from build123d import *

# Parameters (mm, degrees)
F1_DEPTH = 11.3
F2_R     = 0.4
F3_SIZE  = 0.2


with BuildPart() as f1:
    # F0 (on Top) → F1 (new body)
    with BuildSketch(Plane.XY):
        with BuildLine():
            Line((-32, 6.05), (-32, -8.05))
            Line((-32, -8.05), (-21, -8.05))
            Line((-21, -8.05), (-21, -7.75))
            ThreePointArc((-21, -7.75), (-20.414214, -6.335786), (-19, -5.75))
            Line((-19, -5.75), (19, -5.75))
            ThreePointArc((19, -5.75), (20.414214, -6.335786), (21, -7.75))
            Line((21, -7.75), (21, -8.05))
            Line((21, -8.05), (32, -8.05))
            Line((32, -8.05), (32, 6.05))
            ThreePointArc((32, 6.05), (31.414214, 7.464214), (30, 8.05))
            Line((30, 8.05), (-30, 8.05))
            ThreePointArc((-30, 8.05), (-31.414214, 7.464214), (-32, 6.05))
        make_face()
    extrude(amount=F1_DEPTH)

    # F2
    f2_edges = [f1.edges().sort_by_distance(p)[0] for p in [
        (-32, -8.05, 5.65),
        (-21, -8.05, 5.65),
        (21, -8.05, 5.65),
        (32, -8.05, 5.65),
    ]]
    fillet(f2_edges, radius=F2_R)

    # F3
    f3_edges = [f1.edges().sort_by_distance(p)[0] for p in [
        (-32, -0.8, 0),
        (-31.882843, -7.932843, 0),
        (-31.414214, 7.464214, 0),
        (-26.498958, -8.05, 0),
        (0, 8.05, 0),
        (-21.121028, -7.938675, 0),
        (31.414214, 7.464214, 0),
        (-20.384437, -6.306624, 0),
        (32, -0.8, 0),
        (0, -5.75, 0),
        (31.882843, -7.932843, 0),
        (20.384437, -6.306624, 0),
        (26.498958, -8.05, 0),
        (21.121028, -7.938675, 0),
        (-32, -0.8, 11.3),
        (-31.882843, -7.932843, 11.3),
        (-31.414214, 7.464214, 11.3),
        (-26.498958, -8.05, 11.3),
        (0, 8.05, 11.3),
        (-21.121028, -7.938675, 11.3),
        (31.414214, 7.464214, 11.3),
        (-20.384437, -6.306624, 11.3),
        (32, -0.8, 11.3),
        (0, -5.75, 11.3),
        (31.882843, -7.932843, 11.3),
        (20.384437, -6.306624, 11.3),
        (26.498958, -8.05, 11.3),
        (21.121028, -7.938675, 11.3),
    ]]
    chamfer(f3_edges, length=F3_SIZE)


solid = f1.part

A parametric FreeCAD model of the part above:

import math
import FreeCAD as App
import Part
import Sketcher


def edges_at(feature, points):
    """Names of the edges that pass closest to the given points."""
    edges = feature.Shape.Edges
    near = lambda p: min(range(len(edges)), key=lambda i: edges[i].distToShape(Part.Vertex(*p))[0])
    return sorted({f"Edge{near(p) + 1}" for p in points})

doc = App.newDocument("Part")
params = doc.addObject("Spreadsheet::Sheet", "Params")
for row, (alias, value) in enumerate([
    ("sketch1_radius", "1.999999 mm"),
    ("sketch1_width", "11 mm"),
    ("sketch1_width2", "38 mm"),
    ("sketch1_height", "14.1 mm"),
    ("sketch1_height2", "0.3 mm"),
    ("pad1_length", "11.3 mm"),
    ("fillet_radius", "0.4 mm"),
    ("chamfer_size", "0.2 mm"),
], start=1):
    params.set(f"A{row}", alias)
    params.set(f"B{row}", "=" + value)
    params.setAlias(f"B{row}", alias)

body = doc.addObject("PartDesign::Body", "Body")

# Sketch on XY plane
sketch1 = body.newObject("Sketcher::SketchObject", "Sketch")
sketch1.AttachmentSupport = (doc.getObject("XY_Plane"), [""])
sketch1.MapMode = "FlatFace"
sketch1.addGeometry([
    Part.LineSegment(App.Vector(-32, 6.05, 0), App.Vector(-32, -8.05, 0)),  # 0
    Part.LineSegment(App.Vector(-32, -8.05, 0), App.Vector(-21, -8.05, 0)),  # 1
    Part.LineSegment(App.Vector(-21, -8.05, 0), App.Vector(-21, -7.75, 0)),  # 2
    Part.ArcOfCircle(Part.Circle(App.Vector(-19.000001, -7.749999, 0), App.Vector(0, 0, 1), 1.999999), math.radians(89.999957), math.radians(180.000043)),  # 3
    Part.LineSegment(App.Vector(-19, -5.75, 0), App.Vector(19, -5.75, 0)),  # 4
    Part.ArcOfCircle(Part.Circle(App.Vector(19.000001, -7.749999, 0), App.Vector(0, 0, 1), 1.999999), math.radians(-0.000043), math.radians(90.000043)),  # 5
    Part.LineSegment(App.Vector(21, -7.75, 0), App.Vector(21, -8.05, 0)),  # 6
    Part.LineSegment(App.Vector(21, -8.05, 0), App.Vector(32, -8.05, 0)),  # 7
    Part.LineSegment(App.Vector(32, -8.05, 0), App.Vector(32, 6.05, 0)),  # 8
    Part.ArcOfCircle(Part.Circle(App.Vector(30.000001, 6.050001, 0), App.Vector(0, 0, 1), 1.999999), math.radians(-0.000043), math.radians(90.000043)),  # 9
    Part.LineSegment(App.Vector(30, 8.05, 0), App.Vector(-30, 8.05, 0)),  # 10
    Part.ArcOfCircle(Part.Circle(App.Vector(-30.000001, 6.050001, 0), App.Vector(0, 0, 1), 1.999999), math.radians(89.999957), math.radians(180.000043)),  # 11
], False)
sketch1.addConstraint([
    Sketcher.Constraint("Coincident", 0, 2, 1, 1),
    Sketcher.Constraint("Coincident", 1, 2, 2, 1),
    Sketcher.Constraint("Tangent", 2, 2, 3, 2),
    Sketcher.Constraint("Tangent", 3, 1, 4, 1),
    Sketcher.Constraint("Tangent", 4, 2, 5, 2),
    Sketcher.Constraint("Tangent", 5, 1, 6, 1),
    Sketcher.Constraint("Coincident", 6, 2, 7, 1),
    Sketcher.Constraint("Coincident", 7, 2, 8, 1),
    Sketcher.Constraint("Tangent", 8, 2, 9, 1),
    Sketcher.Constraint("Tangent", 9, 2, 10, 1),
    Sketcher.Constraint("Tangent", 10, 2, 11, 1),
    Sketcher.Constraint("Tangent", 11, 2, 0, 1),
    Sketcher.Constraint("Vertical", 0),
    Sketcher.Constraint("Horizontal", 1),
    Sketcher.Constraint("Vertical", 2),
    Sketcher.Constraint("Horizontal", 4),
    Sketcher.Constraint("Vertical", 6),
    Sketcher.Constraint("Horizontal", 7),
    Sketcher.Constraint("Vertical", 8),
    Sketcher.Constraint("Horizontal", 10),
    Sketcher.Constraint("Equal", 3, 5),
    Sketcher.Constraint("Equal", 5, 9),
    Sketcher.Constraint("Equal", 9, 11),
    Sketcher.Constraint("Symmetric", 1, 2, 6, 2, -2),
    Sketcher.Constraint("Equal", 1, 7),
    Sketcher.Constraint("Radius", 3, 1.999999),
    Sketcher.Constraint("DistanceX", 1, 1, 1, 2, 11.0),
    Sketcher.Constraint("DistanceX", 4, 1, 4, 2, 38.0),
    Sketcher.Constraint("DistanceY", 0, 2, 0, 1, 14.1),
    Sketcher.Constraint("DistanceY", 2, 1, 2, 2, 0.3),
    Sketcher.Constraint("DistanceY", 3, 3, -1, 1, 7.749999),
])
sketch1.setExpression("Constraints[25]", "Params.sketch1_radius")
sketch1.setExpression("Constraints[26]", "Params.sketch1_width")
sketch1.setExpression("Constraints[27]", "Params.sketch1_width2")
sketch1.setExpression("Constraints[28]", "Params.sketch1_height")
sketch1.setExpression("Constraints[29]", "Params.sketch1_height2")
pad1 = body.newObject("PartDesign::Pad", "Pad")
pad1.Profile = sketch1
pad1.setExpression("Length", "Params.pad1_length")
doc.recompute()

fillet = body.newObject("PartDesign::Fillet", "Fillet")
fillet.Base = (pad1, edges_at(pad1, [
    (-32, -8.05, 5.65),
    (-21, -8.05, 5.65),
    (21, -8.05, 5.65),
    (32, -8.05, 5.65),
]))
fillet.setExpression("Radius", "Params.fillet_radius")
doc.recompute()

chamfer = body.newObject("PartDesign::Chamfer", "Chamfer")
chamfer.Base = (fillet, edges_at(fillet, [
    (-32, -0.8, 0),
    (-31.883, -7.933, 0),
    (-31.414, 7.464, 0),
    (-26.499, -8.05, 0),
    (0, 8.05, 0),
    (-21.121, -7.939, 0),
    (31.414, 7.464, 0),
    (-20.384, -6.307, 0),
    (32, -0.8, 0),
    (0, -5.75, 0),
    (31.883, -7.933, 0),
    (20.384, -6.307, 0),
    (26.499, -8.05, 0),
    (21.121, -7.939, 0),
    (-32, -0.8, 11.3),
    (-31.883, -7.933, 11.3),
    (-31.414, 7.464, 11.3),
    (-26.499, -8.05, 11.3),
    (0, 8.05, 11.3),
    (-21.121, -7.939, 11.3),
    (31.414, 7.464, 11.3),
    (-20.384, -6.307, 11.3),
    (32, -0.8, 11.3),
    (0, -5.75, 11.3),
    (31.883, -7.933, 11.3),
    (20.384, -6.307, 11.3),
    (26.499, -8.05, 11.3),
    (21.121, -7.939, 11.3),
]))
chamfer.setExpression("Size", "Params.chamfer_size")

doc.recompute()
